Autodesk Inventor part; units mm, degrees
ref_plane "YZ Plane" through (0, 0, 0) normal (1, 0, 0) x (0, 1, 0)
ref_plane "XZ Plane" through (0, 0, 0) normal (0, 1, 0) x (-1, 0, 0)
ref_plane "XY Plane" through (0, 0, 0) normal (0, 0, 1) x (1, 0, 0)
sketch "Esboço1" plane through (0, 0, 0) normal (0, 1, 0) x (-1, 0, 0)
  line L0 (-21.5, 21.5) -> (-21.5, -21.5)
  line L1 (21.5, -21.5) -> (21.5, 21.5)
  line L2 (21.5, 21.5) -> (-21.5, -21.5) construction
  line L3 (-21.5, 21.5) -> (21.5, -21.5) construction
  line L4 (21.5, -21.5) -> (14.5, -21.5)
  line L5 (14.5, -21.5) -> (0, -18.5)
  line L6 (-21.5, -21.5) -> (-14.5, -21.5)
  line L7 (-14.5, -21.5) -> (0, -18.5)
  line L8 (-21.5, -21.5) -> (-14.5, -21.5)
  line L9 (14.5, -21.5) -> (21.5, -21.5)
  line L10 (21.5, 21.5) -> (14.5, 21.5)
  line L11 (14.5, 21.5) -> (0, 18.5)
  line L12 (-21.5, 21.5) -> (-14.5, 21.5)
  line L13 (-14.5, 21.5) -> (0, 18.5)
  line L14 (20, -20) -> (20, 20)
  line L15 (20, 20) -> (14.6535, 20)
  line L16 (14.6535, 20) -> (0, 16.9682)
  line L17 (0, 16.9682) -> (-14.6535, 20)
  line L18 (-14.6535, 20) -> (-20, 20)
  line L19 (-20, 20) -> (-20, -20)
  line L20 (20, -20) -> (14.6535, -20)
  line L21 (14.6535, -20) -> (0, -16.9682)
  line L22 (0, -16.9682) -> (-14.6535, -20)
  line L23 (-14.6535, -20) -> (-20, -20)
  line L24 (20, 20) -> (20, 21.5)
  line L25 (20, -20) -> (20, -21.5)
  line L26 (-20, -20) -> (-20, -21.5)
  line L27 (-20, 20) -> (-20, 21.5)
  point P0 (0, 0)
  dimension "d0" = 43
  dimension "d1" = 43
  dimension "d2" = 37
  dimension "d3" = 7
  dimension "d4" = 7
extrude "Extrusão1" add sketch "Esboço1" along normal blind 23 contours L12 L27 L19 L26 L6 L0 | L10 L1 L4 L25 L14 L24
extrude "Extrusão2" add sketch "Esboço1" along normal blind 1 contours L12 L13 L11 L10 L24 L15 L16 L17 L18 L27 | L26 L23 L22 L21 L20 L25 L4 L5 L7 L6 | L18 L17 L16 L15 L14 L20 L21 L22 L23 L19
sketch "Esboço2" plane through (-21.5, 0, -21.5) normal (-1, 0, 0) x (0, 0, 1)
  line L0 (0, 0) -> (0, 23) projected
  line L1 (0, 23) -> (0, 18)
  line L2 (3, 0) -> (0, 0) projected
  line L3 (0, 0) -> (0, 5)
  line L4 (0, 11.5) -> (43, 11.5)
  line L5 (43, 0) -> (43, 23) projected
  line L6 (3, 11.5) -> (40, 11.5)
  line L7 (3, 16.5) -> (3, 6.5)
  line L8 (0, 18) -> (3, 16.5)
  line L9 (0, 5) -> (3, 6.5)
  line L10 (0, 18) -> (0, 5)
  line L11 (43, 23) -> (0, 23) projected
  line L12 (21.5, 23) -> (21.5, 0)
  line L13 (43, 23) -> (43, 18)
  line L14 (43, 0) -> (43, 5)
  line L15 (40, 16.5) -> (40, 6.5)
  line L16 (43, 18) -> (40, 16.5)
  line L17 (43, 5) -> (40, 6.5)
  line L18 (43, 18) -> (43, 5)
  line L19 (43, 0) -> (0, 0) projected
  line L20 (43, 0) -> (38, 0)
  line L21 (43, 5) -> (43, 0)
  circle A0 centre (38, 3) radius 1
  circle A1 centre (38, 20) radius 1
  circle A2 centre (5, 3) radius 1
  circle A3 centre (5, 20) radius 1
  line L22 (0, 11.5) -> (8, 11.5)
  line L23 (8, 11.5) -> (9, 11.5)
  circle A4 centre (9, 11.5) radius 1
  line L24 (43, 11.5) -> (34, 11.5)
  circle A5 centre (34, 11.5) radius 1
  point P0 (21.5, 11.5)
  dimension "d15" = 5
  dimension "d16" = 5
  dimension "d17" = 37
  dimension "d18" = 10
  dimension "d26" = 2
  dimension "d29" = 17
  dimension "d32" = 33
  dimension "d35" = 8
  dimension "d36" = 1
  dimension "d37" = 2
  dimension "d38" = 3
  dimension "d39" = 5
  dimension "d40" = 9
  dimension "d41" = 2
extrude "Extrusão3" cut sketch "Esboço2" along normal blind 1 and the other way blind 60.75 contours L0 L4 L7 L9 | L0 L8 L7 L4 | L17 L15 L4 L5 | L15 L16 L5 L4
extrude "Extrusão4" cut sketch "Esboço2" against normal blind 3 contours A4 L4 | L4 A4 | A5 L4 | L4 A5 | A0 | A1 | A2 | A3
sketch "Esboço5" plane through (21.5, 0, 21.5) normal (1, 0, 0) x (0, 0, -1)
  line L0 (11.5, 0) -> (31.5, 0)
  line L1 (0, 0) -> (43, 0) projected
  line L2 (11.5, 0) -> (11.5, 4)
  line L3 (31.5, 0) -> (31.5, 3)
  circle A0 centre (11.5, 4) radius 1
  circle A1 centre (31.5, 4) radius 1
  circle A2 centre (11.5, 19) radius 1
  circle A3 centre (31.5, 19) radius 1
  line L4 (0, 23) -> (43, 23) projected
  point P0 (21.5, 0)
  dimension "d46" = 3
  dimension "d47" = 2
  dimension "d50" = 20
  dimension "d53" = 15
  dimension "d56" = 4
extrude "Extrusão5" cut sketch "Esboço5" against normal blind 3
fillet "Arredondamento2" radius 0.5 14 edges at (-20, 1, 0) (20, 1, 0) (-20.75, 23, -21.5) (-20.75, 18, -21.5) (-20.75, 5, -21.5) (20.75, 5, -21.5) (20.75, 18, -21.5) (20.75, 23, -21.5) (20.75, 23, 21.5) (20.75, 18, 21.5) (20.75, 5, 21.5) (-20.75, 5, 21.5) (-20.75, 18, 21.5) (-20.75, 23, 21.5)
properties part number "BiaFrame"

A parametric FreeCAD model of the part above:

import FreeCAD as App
import Part
import Sketcher
from FreeCAD import Vector
Q = App.Units.Quantity


def edges_at(feature, points):
    """Names of the edges that pass closest to the given points."""
    edges = feature.Shape.Edges
    near = lambda p: min(range(len(edges)), key=lambda i: edges[i].distToShape(Part.Vertex(*p))[0])
    return sorted({f"Edge{near(p) + 1}" for p in points})

doc = App.newDocument("Part")
body = doc.addObject("PartDesign::Body", "Body")
body.AllowCompound = True

# Sketch on XZ plane
sketch1 = body.newObject("Sketcher::SketchObject", "Sketch")
sketch1.AttachmentSupport = (doc.getObject("XZ_Plane"), [""])
sketch1.MapMode = "FlatFace"
sketch1.addGeometry(Part.LineSegment(Vector(20, 21.5, 0), Vector(21.5, 21.5, 0)), False)
sketch1.addGeometry(Part.LineSegment(Vector(21.5, 21.5, 0), Vector(21.5, -21.5, 0)), False)
sketch1.addGeometry(Part.LineSegment(Vector(21.5, -21.5, 0), Vector(20, -21.5, 0)), False)
sketch1.addGeometry(Part.LineSegment(Vector(20, -21.5, 0), Vector(20, 21.5, 0)), False)
sketch1.addGeometry(Part.LineSegment(Vector(-21.5, 21.5, 0), Vector(-20, 21.5, 0)), False)
sketch1.addGeometry(Part.LineSegment(Vector(-20, 21.5, 0), Vector(-20, -21.5, 0)), False)
sketch1.addGeometry(Part.LineSegment(Vector(-20, -21.5, 0), Vector(-21.5, -21.5, 0)), False)
sketch1.addGeometry(Part.LineSegment(Vector(-21.5, -21.5, 0), Vector(-21.5, 21.5, 0)), False)
sketch1.addConstraint(Sketcher.Constraint("Coincident", 0, 2, 1, 1))
sketch1.addConstraint(Sketcher.Constraint("Coincident", 1, 2, 2, 1))
sketch1.addConstraint(Sketcher.Constraint("Coincident", 2, 2, 3, 1))
sketch1.addConstraint(Sketcher.Constraint("Coincident", 3, 2, 0, 1))
sketch1.addConstraint(Sketcher.Constraint("Coincident", 4, 2, 5, 1))
sketch1.addConstraint(Sketcher.Constraint("Coincident", 5, 2, 6, 1))
sketch1.addConstraint(Sketcher.Constraint("Coincident", 6, 2, 7, 1))
sketch1.addConstraint(Sketcher.Constraint("Coincident", 7, 2, 4, 1))
sketch1.addConstraint(Sketcher.Constraint("Horizontal", 0))
sketch1.addConstraint(Sketcher.Constraint("Vertical", 1))
sketch1.addConstraint(Sketcher.Constraint("Horizontal", 2))
sketch1.addConstraint(Sketcher.Constraint("Vertical", 3))
sketch1.addConstraint(Sketcher.Constraint("Horizontal", 4))
sketch1.addConstraint(Sketcher.Constraint("Vertical", 5))
sketch1.addConstraint(Sketcher.Constraint("Horizontal", 6))
sketch1.addConstraint(Sketcher.Constraint("Vertical", 7))
sketch1.addConstraint(Sketcher.Constraint("Symmetric", 2, 2, 4, 2, -1, 1))
sketch1.addConstraint(Sketcher.Constraint("Symmetric", 0, 2, 6, 2, -1, 1))
sketch1.addConstraint(Sketcher.Constraint("Horizontal", 3, 2, 4, 2))
sketch1.addConstraint(Sketcher.Constraint("DistanceY", 1, 2, 1, 1, Q("43 mm")))
sketch1.addConstraint(Sketcher.Constraint("DistanceX", 6, 2, 1, 2, Q("43 mm")))
sketch1.addConstraint(Sketcher.Constraint("DistanceX", 0, 1, 0, 2, Q("1.5 mm")))
pad1 = body.newObject("PartDesign::Pad", "Pad")
pad1.Profile = sketch1
pad1.Length = 23
pad1.Reversed = True

# Sketch on XZ plane
sketch2 = body.newObject("Sketcher::SketchObject", "Sketch001")
sketch2.AttachmentSupport = (doc.getObject("XZ_Plane"), [""])
sketch2.MapMode = "FlatFace"
sketch2.addGeometry(Part.LineSegment(Vector(14, 22, 0), Vector(20, 22, 0)), False)
sketch2.addGeometry(Part.LineSegment(Vector(20, 22, 0), Vector(20, -22, 0)), False)
sketch2.addGeometry(Part.LineSegment(Vector(20, -22, 0), Vector(14, -22, 0)), False)
sketch2.addGeometry(Part.LineSegment(Vector(14, -22, 0), Vector(0, -18, 0)), False)
sketch2.addGeometry(Part.LineSegment(Vector(0, -18, 0), Vector(-14, -22, 0)), False)
sketch2.addGeometry(Part.LineSegment(Vector(-14, -22, 0), Vector(-20, -22, 0)), False)
sketch2.addGeometry(Part.LineSegment(Vector(-20, -22, 0), Vector(-20, 22, 0)), False)
sketch2.addGeometry(Part.LineSegment(Vector(-20, 22, 0), Vector(-14, 22, 0)), False)
sketch2.addGeometry(Part.LineSegment(Vector(-14, 22, 0), Vector(0, 18, 0)), False)
sketch2.addGeometry(Part.LineSegment(Vector(0, 18, 0), Vector(14, 22, 0)), False)
sketch2.addConstraint(Sketcher.Constraint("Coincident", 0, 2, 1, 1))
sketch2.addConstraint(Sketcher.Constraint("Coincident", 1, 2, 2, 1))
sketch2.addConstraint(Sketcher.Constraint("Coincident", 2, 2, 3, 1))
sketch2.addConstraint(Sketcher.Constraint("Coincident", 3, 2, 4, 1))
sketch2.addConstraint(Sketcher.Constraint("Coincident", 4, 2, 5, 1))
sketch2.addConstraint(Sketcher.Constraint("Coincident", 5, 2, 6, 1))
sketch2.addConstraint(Sketcher.Constraint("Coincident", 6, 2, 7, 1))
sketch2.addConstraint(Sketcher.Constraint("Coincident", 7, 2, 8, 1))
sketch2.addConstraint(Sketcher.Constraint("Coincident", 8, 2, 9, 1))
sketch2.addConstraint(Sketcher.Constraint("Coincident", 9, 2, 0, 1))
sketch2.addConstraint(Sketcher.Constraint("Horizontal", 0))
sketch2.addConstraint(Sketcher.Constraint("Vertical", 1))
sketch2.addConstraint(Sketcher.Constraint("Horizontal", 2))
sketch2.addConstraint(Sketcher.Constraint("Horizontal", 5))
sketch2.addConstraint(Sketcher.Constraint("Vertical", 6))
sketch2.addConstraint(Sketcher.Constraint("Horizontal", 7))
sketch2.addConstraint(Sketcher.Constraint("Symmetric", 0, 2, 5, 2, -1, 1))
sketch2.addConstraint(Sketcher.Constraint("Symmetric", 2, 2, 7, 2, -1, 1))
sketch2.addConstraint(Sketcher.Constraint("Symmetric", 3, 2, 8, 2, -1, 1))
sketch2.addConstraint(Sketcher.Constraint("Symmetric", 2, 2, 4, 2, -2))
sketch2.addConstraint(Sketcher.Constraint("PointOnObject", 3, 2, -2))
sketch2.addConstraint(Sketcher.Constraint("Parallel", 4, 9))
sketch2.addConstraint(Sketcher.Constraint("DistanceY", 1, 2, 1, 1, Q("43 mm")))
sketch2.addConstraint(Sketcher.Constraint("DistanceY", 3, 2, 8, 2, Q("37 mm")))
sketch2.addConstraint(Sketcher.Constraint("DistanceX", 0, 1, 0, 2, Q("5.5 mm")))
sketch2.addConstraint(Sketcher.Constraint("DistanceX", -1, 1, 0, 2, Q("20 mm")))
pad2 = body.newObject("PartDesign::Pad", "Pad001")
pad2.Profile = sketch2
pad2.Length = 1
pad2.Reversed = True

# Sketch on YZ plane
sketch3 = body.newObject("Sketcher::SketchObject", "Sketch002")
sketch3.AttachmentSupport = (doc.getObject("YZ_Plane"), [""])
sketch3.MapMode = "FlatFace"
sketch3.AttachmentOffset = App.Placement(Vector(0, 0, -21.5), App.Rotation())
sketch3.addGeometry(Part.LineSegment(Vector(5, -21.5, 0), Vector(6.5, -18.5, 0)), False)
sketch3.addGeometry(Part.LineSegment(Vector(6.5, -18.5, 0), Vector(16.5, -18.5, 0)), False)
sketch3.addGeometry(Part.LineSegment(Vector(16.5, -18.5, 0), Vector(18, -21.5, 0)), False)
sketch3.addGeometry(Part.LineSegment(Vector(18, -21.5, 0), Vector(5, -21.5, 0)), False)
sketch3.addGeometry(Part.LineSegment(Vector(6.5, 18.5, 0), Vector(5, 21.5, 0)), False)
sketch3.addGeometry(Part.LineSegment(Vector(5, 21.5, 0), Vector(18, 21.5, 0)), False)
sketch3.addGeometry(Part.LineSegment(Vector(18, 21.5, 0), Vector(16.5, 18.5, 0)), False)
sketch3.addGeometry(Part.LineSegment(Vector(16.5, 18.5, 0), Vector(6.5, 18.5, 0)), False)
sketch3.addConstraint(Sketcher.Constraint("Coincident", 0, 2, 1, 1))
sketch3.addConstraint(Sketcher.Constraint("Coincident", 1, 2, 2, 1))
sketch3.addConstraint(Sketcher.Constraint("Coincident", 2, 2, 3, 1))
sketch3.addConstraint(Sketcher.Constraint("Coincident", 3, 2, 0, 1))
sketch3.addConstraint(Sketcher.Constraint("Coincident", 4, 2, 5, 1))
sketch3.addConstraint(Sketcher.Constraint("Coincident", 5, 2, 6, 1))
sketch3.addConstraint(Sketcher.Constraint("Coincident", 6, 2, 7, 1))
sketch3.addConstraint(Sketcher.Constraint("Coincident", 7, 2, 4, 1))
sketch3.addConstraint(Sketcher.Constraint("Horizontal", 1))
sketch3.addConstraint(Sketcher.Constraint("Horizontal", 3))
sketch3.addConstraint(Sketcher.Constraint("Horizontal", 5))
sketch3.addConstraint(Sketcher.Constraint("Horizontal", 7))
sketch3.addConstraint(Sketcher.Constraint("Symmetric", 3, 2, 4, 2, -1))
sketch3.addConstraint(Sketcher.Constraint("Symmetric", 1, 2, 6, 2, -1))
sketch3.addConstraint(Sketcher.Constraint("Parallel", 2, 4))
sketch3.addConstraint(Sketcher.Constraint("Parallel", 0, 6))
sketch3.addConstraint(Sketcher.Constraint("Vertical", 2, 2, 5, 2))
sketch3.addConstraint(Sketcher.Constraint("DistanceX", 1, 1, 1, 2, Q("10 mm")))
sketch3.addConstraint(Sketcher.Constraint("DistanceX", -1, 1, 3, 2, Q("5 mm")))
sketch3.addConstraint(Sketcher.Constraint("DistanceY", 2, 2, 1, 2, Q("3 mm")))
sketch3.addConstraint(Sketcher.Constraint("DistanceY", 1, 2, 6, 2, Q("37 mm")))
sketch3.addConstraint(Sketcher.Constraint("DistanceX", 3, 2, 3, 1, Q("13 mm")))
pocket1 = body.newObject("PartDesign::Pocket", "Pocket")
pocket1.Profile = sketch3
pocket1.Type = "ThroughAll"
pocket1.Midplane = True

# Sketch on YZ plane
sketch4 = body.newObject("Sketcher::SketchObject", "Sketch003")
sketch4.AttachmentSupport = (doc.getObject("YZ_Plane"), [""])
sketch4.MapMode = "FlatFace"
sketch4.AttachmentOffset = App.Placement(Vector(0, 0, -21.5), App.Rotation())
sketch4.addGeometry(Part.Circle(Vector(11.5, -12.5, 0), Vector(0, 0, 1), 1), False)
sketch4.addGeometry(Part.Circle(Vector(11.5, 12.5, 0), Vector(0, 0, 1), 1), False)
sketch4.addGeometry(Part.Circle(Vector(3, 16.5, 0), Vector(0, 0, 1), 1), False)
sketch4.addGeometry(Part.Circle(Vector(20, 16.5, 0), Vector(0, 0, 1), 1), False)
sketch4.addGeometry(Part.Circle(Vector(3, -16.5, 0), Vector(0, 0, 1), 1), False)
sketch4.addGeometry(Part.Circle(Vector(20, -16.5, 0), Vector(0, 0, 1), 1), False)
sketch4.addConstraint(Sketcher.Constraint("Equal", 0, 1))
sketch4.addConstraint(Sketcher.Constraint("Equal", 1, 2))
sketch4.addConstraint(Sketcher.Constraint("Equal", 2, 3))
sketch4.addConstraint(Sketcher.Constraint("Equal", 3, 4))
sketch4.addConstraint(Sketcher.Constraint("Equal", 4, 5))
sketch4.addConstraint(Sketcher.Constraint("Symmetric", 0, 3, 1, 3, -1))
sketch4.addConstraint(Sketcher.Constraint("Symmetric", 2, 3, 4, 3, -1))
sketch4.addConstraint(Sketcher.Constraint("Symmetric", 3, 3, 5, 3, -1))
sketch4.addConstraint(Sketcher.Constraint("Horizontal", 2, 3, 3, 3))
sketch4.addConstraint(Sketcher.Constraint("Diameter", 0, Q("2 mm")))
sketch4.addConstraint(Sketcher.Constraint("DistanceX", -1, 1, 2, 3, Q("3 mm")))
sketch4.addConstraint(Sketcher.Constraint("DistanceX", 2, 3, 3, 3, Q("17 mm")))
sketch4.addConstraint(Sketcher.Constraint("DistanceY", 4, 3, 2, 3, Q("33 mm")))
sketch4.addConstraint(Sketcher.Constraint("DistanceY", 0, 3, 1, 3, Q("25 mm")))
sketch4.addConstraint(Sketcher.Constraint("DistanceX", -1, 1, 0, 3, Q("11.5 mm")))
pocket2 = body.newObject("PartDesign::Pocket", "Pocket001")
pocket2.Profile = sketch4
pocket2.Length = 3
pocket2.Reversed = True

# Sketch on YZ plane
sketch5 = body.newObject("Sketcher::SketchObject", "Sketch004")
sketch5.AttachmentSupport = (doc.getObject("YZ_Plane"), [""])
sketch5.MapMode = "FlatFace"
sketch5.AttachmentOffset = App.Placement(Vector(0, 0, 21.5), App.Rotation())
sketch5.addGeometry(Part.Circle(Vector(4, -10, 0), Vector(0, 0, 1), 1), False)
sketch5.addGeometry(Part.Circle(Vector(4, 10, 0), Vector(0, 0, 1), 1), False)
sketch5.addGeometry(Part.Circle(Vector(19, 10, 0), Vector(0, 0, 1), 1), False)
sketch5.addGeometry(Part.Circle(Vector(19, -10, 0), Vector(0, 0, 1), 1), False)
sketch5.addConstraint(Sketcher.Constraint("Equal", 0, 1))
sketch5.addConstraint(Sketcher.Constraint("Equal", 1, 2))
sketch5.addConstraint(Sketcher.Constraint("Equal", 2, 3))
sketch5.addConstraint(Sketcher.Constraint("Symmetric", 0, 3, 1, 3, -1))
sketch5.addConstraint(Sketcher.Constraint("Symmetric", 2, 3, 3, 3, -1))
sketch5.addConstraint(Sketcher.Constraint("Horizontal", 1, 3, 2, 3))
sketch5.addConstraint(Sketcher.Constraint("Diameter", 0, Q("2 mm")))
sketch5.addConstraint(Sketcher.Constraint("DistanceX", -1, 1, 0, 3, Q("4 mm")))
sketch5.addConstraint(Sketcher.Constraint("DistanceY", 0, 3, 1, 3, Q("20 mm")))
sketch5.addConstraint(Sketcher.Constraint("DistanceX", 1, 3, 2, 3, Q("15 mm")))
pocket3 = body.newObject("PartDesign::Pocket", "Pocket002")
pocket3.Profile = sketch5
pocket3.Length = 3
doc.recompute()

fillet = body.newObject("PartDesign::Fillet", "Fillet")
fillet.Base = (pocket3, edges_at(pocket3, [
    (-20, 1, 0),
    (20, 1, 0),
    (-20.75, 23, -21.5),
    (-20.75, 18, -21.5),
    (-20.75, 5, -21.5),
    (20.75, 5, -21.5),
    (20.75, 18, -21.5),
    (20.75, 23, -21.5),
    (20.75, 23, 21.5),
    (20.75, 18, 21.5),
    (20.75, 5, 21.5),
    (-20.75, 5, 21.5),
    (-20.75, 18, 21.5),
    (-20.75, 23, 21.5),
]))
fillet.Radius = 0.5

doc.recompute()
